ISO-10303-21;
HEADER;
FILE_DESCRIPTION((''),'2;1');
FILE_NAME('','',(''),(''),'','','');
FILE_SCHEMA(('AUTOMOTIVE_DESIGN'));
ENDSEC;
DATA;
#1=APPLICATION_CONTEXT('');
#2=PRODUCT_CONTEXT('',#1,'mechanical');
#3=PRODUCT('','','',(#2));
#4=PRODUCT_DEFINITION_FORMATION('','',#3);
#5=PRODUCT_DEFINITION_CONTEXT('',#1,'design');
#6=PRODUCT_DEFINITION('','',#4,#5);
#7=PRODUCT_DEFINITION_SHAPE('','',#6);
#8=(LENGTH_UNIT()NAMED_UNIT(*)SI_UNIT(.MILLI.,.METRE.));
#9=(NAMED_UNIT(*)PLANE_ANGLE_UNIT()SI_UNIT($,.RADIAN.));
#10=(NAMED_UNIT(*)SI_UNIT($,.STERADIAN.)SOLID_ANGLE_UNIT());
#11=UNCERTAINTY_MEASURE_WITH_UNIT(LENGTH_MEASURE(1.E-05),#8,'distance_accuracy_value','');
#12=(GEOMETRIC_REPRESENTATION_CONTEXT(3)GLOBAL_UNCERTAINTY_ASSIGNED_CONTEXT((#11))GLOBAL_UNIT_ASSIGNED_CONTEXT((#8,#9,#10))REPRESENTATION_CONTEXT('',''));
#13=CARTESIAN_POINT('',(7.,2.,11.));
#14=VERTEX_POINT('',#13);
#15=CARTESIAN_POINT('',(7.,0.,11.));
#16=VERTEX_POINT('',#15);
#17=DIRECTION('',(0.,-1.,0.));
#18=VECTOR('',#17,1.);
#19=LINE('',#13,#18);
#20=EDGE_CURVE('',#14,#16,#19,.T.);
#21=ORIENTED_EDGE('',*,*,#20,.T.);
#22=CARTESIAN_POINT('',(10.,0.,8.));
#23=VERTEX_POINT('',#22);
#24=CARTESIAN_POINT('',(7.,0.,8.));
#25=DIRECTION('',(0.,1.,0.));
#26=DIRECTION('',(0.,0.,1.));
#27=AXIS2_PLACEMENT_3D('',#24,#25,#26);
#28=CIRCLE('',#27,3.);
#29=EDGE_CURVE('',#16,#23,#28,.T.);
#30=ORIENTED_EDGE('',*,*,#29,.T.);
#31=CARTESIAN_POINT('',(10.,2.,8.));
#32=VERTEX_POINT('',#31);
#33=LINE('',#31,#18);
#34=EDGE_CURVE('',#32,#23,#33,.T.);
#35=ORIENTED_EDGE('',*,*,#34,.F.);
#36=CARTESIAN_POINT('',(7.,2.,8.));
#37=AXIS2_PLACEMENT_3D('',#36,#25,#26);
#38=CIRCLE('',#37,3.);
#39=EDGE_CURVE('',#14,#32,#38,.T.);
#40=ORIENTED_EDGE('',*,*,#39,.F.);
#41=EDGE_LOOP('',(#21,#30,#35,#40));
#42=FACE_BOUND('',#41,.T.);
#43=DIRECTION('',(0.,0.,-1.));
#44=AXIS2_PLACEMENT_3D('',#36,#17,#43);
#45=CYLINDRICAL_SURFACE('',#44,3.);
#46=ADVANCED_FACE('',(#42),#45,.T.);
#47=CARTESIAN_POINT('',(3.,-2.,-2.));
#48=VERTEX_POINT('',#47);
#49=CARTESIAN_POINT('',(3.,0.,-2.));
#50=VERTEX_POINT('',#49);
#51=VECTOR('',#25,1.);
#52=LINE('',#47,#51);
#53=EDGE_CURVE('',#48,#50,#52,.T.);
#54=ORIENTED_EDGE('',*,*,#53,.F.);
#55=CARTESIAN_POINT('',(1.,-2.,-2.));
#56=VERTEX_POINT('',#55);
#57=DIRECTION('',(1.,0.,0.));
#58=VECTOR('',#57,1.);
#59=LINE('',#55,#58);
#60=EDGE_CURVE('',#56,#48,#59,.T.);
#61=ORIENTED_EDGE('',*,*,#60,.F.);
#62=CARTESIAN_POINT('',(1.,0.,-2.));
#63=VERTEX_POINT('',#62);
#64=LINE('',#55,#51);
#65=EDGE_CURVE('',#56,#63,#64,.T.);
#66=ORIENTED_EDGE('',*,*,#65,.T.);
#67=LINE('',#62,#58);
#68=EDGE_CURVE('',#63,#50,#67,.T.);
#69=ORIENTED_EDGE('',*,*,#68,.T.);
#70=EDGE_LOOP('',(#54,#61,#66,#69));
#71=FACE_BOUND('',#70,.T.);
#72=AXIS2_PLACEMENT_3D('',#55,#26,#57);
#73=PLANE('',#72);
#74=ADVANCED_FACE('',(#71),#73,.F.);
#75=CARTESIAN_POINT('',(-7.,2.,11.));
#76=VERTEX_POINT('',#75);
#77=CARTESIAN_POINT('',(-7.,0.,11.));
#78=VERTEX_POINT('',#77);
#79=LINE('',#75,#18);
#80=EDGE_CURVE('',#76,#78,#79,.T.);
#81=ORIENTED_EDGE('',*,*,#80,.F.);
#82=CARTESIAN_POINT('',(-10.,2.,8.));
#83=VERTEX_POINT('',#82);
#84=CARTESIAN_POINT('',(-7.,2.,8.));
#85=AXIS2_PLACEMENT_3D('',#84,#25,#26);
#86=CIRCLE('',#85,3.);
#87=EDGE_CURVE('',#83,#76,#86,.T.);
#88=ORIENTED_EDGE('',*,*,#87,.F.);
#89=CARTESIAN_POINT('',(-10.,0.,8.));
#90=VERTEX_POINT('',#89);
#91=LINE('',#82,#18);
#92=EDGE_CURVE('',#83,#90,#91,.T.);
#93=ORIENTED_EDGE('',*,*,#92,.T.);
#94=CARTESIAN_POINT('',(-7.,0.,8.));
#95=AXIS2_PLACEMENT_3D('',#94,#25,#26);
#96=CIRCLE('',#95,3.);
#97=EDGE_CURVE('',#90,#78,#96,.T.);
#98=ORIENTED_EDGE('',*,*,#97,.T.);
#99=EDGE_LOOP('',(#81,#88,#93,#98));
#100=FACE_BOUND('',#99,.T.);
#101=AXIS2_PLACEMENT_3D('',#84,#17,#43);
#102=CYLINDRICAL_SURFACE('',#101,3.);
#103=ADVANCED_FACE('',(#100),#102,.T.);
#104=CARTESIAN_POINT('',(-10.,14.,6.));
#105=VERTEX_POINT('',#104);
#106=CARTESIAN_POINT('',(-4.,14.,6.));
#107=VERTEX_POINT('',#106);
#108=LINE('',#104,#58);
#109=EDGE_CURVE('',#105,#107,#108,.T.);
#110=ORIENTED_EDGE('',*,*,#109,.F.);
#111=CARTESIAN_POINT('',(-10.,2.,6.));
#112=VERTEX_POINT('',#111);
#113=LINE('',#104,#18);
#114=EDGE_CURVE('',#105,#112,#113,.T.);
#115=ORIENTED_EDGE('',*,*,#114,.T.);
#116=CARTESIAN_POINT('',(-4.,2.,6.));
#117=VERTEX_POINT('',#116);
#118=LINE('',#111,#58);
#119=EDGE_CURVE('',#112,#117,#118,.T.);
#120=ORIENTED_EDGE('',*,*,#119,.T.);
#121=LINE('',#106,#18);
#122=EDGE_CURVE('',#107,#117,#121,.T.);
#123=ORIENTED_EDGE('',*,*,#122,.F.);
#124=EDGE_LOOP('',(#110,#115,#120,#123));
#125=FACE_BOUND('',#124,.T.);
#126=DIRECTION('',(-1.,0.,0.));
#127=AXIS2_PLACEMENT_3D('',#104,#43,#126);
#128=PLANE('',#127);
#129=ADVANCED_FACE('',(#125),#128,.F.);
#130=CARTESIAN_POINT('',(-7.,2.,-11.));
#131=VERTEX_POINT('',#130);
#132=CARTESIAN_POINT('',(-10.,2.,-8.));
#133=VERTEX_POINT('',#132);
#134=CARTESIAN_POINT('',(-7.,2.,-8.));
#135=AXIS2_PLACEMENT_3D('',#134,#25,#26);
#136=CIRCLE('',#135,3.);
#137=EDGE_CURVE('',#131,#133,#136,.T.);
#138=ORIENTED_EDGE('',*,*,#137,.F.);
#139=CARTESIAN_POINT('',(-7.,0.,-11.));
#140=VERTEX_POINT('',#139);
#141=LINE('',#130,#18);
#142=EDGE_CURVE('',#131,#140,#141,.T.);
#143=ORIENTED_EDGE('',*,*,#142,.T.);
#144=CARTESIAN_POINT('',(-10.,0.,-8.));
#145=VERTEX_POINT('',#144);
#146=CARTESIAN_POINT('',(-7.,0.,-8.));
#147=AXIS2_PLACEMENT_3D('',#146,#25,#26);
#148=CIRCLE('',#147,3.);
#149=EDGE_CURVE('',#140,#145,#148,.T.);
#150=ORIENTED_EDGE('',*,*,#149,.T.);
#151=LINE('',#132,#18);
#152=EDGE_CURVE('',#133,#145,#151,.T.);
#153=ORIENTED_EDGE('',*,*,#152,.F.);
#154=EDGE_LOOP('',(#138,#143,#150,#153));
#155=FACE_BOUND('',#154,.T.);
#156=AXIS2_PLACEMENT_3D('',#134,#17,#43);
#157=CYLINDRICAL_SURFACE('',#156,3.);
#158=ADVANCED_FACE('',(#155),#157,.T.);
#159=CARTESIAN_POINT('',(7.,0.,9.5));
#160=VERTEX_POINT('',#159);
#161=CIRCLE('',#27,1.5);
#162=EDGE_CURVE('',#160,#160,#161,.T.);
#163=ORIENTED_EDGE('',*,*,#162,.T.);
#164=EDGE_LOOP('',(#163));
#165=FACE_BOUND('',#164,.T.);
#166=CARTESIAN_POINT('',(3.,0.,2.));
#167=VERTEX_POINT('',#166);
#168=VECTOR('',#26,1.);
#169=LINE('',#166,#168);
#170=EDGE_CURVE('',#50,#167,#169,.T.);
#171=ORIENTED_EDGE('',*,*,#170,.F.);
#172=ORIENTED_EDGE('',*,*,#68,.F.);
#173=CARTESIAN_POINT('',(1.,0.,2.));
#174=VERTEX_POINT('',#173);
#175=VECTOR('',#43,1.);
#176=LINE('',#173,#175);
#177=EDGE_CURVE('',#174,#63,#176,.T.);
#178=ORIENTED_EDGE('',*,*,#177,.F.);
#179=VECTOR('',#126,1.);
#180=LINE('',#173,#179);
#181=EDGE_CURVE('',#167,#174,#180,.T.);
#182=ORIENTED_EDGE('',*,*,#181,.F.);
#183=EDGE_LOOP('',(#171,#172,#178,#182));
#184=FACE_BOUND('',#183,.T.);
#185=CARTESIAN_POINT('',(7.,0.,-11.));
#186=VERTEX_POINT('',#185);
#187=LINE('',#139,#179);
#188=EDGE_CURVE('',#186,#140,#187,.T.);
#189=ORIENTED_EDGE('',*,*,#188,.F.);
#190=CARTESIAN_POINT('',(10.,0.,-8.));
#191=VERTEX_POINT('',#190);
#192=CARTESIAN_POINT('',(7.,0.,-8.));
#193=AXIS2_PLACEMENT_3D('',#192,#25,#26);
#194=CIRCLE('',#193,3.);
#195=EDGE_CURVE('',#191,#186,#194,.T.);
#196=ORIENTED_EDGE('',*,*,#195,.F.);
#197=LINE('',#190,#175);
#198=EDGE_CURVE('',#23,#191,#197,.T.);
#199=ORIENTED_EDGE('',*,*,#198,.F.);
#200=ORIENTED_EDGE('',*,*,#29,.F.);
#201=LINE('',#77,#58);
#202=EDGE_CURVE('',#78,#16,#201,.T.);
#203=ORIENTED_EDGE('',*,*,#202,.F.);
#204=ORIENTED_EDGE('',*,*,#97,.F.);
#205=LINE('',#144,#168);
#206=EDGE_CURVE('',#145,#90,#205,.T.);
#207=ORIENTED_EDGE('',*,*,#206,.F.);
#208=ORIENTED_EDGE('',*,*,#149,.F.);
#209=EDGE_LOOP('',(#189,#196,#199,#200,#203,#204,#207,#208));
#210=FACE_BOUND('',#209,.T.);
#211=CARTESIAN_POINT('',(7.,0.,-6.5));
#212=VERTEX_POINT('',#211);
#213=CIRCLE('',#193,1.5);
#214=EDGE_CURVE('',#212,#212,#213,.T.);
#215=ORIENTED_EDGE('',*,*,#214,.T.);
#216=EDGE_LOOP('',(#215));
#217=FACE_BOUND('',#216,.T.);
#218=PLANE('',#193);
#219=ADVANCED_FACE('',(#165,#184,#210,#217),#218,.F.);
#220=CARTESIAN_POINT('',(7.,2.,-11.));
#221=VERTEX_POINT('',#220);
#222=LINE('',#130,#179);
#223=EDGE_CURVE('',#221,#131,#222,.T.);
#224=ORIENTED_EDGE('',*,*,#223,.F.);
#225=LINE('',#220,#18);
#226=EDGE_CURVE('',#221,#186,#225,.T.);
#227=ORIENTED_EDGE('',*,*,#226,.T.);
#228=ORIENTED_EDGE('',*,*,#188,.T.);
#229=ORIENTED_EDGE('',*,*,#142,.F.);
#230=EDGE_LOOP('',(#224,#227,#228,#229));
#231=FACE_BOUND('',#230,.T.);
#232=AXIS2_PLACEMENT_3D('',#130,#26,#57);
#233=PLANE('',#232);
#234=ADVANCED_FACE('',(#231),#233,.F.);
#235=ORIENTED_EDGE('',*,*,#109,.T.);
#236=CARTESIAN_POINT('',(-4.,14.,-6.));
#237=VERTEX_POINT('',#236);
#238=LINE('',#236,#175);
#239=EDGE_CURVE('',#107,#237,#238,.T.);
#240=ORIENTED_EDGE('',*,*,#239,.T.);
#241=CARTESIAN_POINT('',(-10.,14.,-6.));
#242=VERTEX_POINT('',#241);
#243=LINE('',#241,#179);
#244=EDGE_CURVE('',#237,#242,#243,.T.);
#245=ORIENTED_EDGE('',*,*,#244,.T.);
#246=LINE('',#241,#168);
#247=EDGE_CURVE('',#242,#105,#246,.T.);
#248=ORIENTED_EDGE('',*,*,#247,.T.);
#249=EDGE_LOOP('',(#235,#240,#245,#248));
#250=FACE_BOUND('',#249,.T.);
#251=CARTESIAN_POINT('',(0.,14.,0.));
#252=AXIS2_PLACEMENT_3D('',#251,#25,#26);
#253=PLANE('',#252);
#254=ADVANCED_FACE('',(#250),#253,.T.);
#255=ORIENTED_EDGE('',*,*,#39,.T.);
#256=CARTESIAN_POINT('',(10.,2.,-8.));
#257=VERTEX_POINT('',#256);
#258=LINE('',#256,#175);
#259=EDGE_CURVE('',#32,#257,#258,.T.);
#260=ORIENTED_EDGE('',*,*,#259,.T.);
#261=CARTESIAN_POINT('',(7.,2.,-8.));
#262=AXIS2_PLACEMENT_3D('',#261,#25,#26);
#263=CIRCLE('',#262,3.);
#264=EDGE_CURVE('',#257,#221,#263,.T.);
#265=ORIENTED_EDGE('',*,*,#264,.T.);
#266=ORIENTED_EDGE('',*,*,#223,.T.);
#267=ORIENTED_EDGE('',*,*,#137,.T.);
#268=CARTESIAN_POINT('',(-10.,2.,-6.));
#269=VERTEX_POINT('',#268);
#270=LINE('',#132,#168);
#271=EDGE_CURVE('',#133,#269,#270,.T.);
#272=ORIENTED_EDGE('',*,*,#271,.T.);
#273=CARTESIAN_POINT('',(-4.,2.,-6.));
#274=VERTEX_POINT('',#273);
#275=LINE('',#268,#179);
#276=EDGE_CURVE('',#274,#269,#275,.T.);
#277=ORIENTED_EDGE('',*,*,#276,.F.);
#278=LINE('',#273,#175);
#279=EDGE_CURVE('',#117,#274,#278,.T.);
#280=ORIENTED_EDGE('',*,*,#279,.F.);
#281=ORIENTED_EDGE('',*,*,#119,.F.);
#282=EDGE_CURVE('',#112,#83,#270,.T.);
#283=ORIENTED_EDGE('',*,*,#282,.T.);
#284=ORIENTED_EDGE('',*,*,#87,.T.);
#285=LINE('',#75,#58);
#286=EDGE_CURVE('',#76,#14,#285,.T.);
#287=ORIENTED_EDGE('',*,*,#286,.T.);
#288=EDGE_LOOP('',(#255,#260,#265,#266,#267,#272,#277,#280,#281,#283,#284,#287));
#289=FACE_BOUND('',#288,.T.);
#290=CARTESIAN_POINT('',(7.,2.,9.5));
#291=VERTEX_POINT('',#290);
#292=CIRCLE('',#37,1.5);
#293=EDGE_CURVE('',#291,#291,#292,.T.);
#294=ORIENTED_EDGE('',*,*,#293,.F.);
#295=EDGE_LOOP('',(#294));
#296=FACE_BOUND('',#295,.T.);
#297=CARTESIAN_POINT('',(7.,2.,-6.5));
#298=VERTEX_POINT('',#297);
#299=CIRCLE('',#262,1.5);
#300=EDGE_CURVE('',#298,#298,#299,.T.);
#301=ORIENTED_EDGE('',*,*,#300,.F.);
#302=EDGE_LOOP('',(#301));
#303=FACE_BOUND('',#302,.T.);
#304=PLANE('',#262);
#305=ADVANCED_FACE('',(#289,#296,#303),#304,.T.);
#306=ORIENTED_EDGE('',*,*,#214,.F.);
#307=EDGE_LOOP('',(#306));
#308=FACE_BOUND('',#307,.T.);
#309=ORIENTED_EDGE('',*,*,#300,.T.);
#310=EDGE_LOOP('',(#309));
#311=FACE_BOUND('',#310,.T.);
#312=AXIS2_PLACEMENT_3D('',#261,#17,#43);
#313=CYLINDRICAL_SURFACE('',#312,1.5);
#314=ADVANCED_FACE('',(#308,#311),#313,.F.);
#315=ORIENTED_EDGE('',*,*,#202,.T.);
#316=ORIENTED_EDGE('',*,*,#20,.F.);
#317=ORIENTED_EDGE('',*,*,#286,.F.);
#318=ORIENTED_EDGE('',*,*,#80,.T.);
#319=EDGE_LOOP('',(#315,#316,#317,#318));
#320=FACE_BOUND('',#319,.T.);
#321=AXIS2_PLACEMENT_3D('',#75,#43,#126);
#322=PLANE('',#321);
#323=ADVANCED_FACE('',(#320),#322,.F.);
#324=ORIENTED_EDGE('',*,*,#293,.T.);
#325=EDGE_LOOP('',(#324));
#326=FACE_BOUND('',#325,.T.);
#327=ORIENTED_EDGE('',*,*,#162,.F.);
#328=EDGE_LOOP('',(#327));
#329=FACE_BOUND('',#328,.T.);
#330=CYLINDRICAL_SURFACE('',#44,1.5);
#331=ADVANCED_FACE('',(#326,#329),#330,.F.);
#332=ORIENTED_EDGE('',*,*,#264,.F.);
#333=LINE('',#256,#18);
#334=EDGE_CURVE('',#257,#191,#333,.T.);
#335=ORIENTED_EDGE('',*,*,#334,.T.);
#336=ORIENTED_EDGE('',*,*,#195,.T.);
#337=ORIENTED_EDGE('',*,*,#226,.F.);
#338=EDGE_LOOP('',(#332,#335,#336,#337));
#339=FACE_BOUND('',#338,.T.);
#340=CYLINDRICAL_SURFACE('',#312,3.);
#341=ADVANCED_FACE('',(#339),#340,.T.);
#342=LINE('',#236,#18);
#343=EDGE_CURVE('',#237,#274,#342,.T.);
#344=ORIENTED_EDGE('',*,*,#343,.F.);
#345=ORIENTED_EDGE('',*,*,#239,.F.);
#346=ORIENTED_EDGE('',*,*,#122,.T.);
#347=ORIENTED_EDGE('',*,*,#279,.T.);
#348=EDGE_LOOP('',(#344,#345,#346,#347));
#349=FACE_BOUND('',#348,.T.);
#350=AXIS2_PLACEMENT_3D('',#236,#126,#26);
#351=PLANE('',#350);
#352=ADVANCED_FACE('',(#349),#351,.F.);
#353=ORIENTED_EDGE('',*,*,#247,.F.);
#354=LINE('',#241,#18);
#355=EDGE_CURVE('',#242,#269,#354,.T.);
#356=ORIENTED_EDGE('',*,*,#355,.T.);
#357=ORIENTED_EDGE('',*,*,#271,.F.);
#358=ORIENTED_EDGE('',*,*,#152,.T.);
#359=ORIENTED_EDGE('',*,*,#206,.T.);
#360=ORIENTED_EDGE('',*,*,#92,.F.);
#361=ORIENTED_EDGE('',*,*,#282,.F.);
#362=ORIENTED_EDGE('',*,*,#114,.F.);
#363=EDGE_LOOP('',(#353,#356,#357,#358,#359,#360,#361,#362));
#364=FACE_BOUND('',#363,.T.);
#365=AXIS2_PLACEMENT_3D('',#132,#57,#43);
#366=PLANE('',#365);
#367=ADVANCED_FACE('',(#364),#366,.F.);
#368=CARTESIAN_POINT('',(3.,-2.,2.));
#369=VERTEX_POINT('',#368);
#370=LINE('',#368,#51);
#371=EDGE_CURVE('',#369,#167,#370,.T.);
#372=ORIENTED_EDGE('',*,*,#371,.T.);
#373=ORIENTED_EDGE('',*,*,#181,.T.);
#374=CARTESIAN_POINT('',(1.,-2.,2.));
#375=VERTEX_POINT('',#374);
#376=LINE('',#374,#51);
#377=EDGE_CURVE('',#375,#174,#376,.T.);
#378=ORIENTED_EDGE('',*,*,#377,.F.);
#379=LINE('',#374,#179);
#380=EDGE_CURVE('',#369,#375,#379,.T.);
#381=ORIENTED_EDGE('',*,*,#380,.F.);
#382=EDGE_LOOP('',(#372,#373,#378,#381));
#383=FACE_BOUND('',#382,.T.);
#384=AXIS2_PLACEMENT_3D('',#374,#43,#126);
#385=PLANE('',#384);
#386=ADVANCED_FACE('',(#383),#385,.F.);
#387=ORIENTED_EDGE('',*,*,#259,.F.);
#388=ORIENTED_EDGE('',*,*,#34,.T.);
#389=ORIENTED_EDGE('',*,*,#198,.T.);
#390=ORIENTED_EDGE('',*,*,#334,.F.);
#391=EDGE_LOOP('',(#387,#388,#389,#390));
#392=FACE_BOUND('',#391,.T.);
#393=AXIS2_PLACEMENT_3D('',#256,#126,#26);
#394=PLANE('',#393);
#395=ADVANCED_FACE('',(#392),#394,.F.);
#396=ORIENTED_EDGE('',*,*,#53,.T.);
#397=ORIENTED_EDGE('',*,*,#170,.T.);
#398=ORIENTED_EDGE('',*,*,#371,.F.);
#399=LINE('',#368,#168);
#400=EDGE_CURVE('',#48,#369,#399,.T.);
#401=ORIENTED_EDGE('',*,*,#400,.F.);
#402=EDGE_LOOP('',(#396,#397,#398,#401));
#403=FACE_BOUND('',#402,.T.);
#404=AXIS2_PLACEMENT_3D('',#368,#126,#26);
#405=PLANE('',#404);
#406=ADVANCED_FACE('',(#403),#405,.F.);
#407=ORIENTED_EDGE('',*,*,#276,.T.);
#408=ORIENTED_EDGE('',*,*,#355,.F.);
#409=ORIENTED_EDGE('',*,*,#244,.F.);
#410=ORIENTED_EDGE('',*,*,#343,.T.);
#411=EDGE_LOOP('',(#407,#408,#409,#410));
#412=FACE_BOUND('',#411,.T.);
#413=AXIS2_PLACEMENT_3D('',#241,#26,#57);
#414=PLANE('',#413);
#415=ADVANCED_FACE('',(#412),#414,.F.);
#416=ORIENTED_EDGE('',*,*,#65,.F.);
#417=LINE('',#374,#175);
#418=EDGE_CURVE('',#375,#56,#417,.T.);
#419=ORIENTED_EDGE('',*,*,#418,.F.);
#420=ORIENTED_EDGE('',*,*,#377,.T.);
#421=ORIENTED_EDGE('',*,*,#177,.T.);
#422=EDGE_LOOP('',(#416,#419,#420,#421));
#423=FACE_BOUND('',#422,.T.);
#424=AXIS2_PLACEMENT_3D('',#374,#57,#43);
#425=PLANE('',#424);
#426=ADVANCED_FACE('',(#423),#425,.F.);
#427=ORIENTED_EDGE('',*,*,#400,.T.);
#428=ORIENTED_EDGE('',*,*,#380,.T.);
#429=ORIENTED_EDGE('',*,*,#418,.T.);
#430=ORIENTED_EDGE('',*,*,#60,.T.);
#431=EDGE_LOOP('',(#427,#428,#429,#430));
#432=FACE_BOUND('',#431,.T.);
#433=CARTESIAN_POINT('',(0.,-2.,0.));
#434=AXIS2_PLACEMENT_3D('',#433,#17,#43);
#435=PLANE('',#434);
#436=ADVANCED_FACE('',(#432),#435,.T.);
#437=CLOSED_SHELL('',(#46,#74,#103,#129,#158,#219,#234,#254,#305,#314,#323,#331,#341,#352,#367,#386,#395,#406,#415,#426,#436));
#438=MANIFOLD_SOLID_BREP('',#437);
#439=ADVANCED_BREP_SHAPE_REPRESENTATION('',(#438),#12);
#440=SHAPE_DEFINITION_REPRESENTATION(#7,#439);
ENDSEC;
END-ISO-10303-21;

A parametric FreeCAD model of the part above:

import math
import FreeCAD as App
import Part
import Sketcher


def add_polygon(sketch, points):
    """Adds a closed chain of lines whose ends are joined by coincident constraints."""
    first, n = sketch.GeometryCount, len(points)
    for a, b in zip(points, points[1:] + points[:1]):
        sketch.addGeometry(Part.LineSegment(App.Vector(*a, 0), App.Vector(*b, 0)), False)
    for i in range(n):
        sketch.addConstraint(Sketcher.Constraint("Coincident", first + i, 2, first + (i + 1) % n, 1))

doc = App.newDocument("Part")
body = doc.addObject("PartDesign::Body", "Body")

# Sketch on XZ plane
sketch1 = body.newObject("Sketcher::SketchObject", "Sketch")
sketch1.AttachmentSupport = (doc.getObject("XZ_Plane"), [""])
sketch1.MapMode = "FlatFace"
sketch1.addGeometry([
    Part.LineSegment(App.Vector(7, -11, 0), App.Vector(-7, -11, 0)),  # 0
    Part.ArcOfCircle(Part.Circle(App.Vector(-7, -8, 0), App.Vector(0, 0, 1), 3), math.radians(180), math.radians(270)),  # 1
    Part.LineSegment(App.Vector(-10, -8, 0), App.Vector(-10, 8, 0)),  # 2
    Part.ArcOfCircle(Part.Circle(App.Vector(-7, 8, 0), App.Vector(0, 0, 1), 3), math.radians(90), math.radians(180)),  # 3
    Part.LineSegment(App.Vector(-7, 11, 0), App.Vector(7, 11, 0)),  # 4
    Part.ArcOfCircle(Part.Circle(App.Vector(7, 8, 0), App.Vector(0, 0, 1), 3), math.radians(0), math.radians(90)),  # 5
    Part.LineSegment(App.Vector(10, 8, 0), App.Vector(10, -8, 0)),  # 6
    Part.ArcOfCircle(Part.Circle(App.Vector(7, -8, 0), App.Vector(0, 0, 1), 3), math.radians(-90), math.radians(0)),  # 7
    Part.Circle(App.Vector(7, 8, 0), App.Vector(0, 0, 1), 1.5),  # 8
    Part.Circle(App.Vector(7, -8, 0), App.Vector(0, 0, 1), 1.5),  # 9
], False)
sketch1.addConstraint([
    Sketcher.Constraint("Tangent", 0, 2, 1, 2),
    Sketcher.Constraint("Tangent", 1, 1, 2, 1),
    Sketcher.Constraint("Tangent", 2, 2, 3, 2),
    Sketcher.Constraint("Tangent", 3, 1, 4, 1),
    Sketcher.Constraint("Tangent", 4, 2, 5, 2),
    Sketcher.Constraint("Tangent", 5, 1, 6, 1),
    Sketcher.Constraint("Tangent", 6, 2, 7, 2),
    Sketcher.Constraint("Tangent", 7, 1, 0, 1),
    Sketcher.Constraint("Horizontal", 0),
    Sketcher.Constraint("Vertical", 2),
    Sketcher.Constraint("Horizontal", 4),
    Sketcher.Constraint("Vertical", 6),
    Sketcher.Constraint("Coincident", 8, 3, 5, 3),
    Sketcher.Constraint("Coincident", 9, 3, 7, 3),
    Sketcher.Constraint("Equal", 1, 3),
    Sketcher.Constraint("Equal", 3, 5),
    Sketcher.Constraint("Equal", 5, 7),
    Sketcher.Constraint("Equal", 8, 9),
    Sketcher.Constraint("Symmetric", 1, 3, 5, 3, -1, 1),
    Sketcher.Constraint("Diameter", 8, 3.0),
    Sketcher.Constraint("Radius", 1, 3.0),
    Sketcher.Constraint("DistanceX", 0, 2, 0, 1, 14.0),
    Sketcher.Constraint("DistanceY", 2, 1, 2, 2, 16.0),
])
pad1 = body.newObject("PartDesign::Pad", "Pad")
pad1.Profile = sketch1
pad1.Length = 2
pad1.Reversed = True

# Sketch on XZ plane
sketch2 = body.newObject("Sketcher::SketchObject", "Sketch001")
sketch2.AttachmentSupport = (doc.getObject("XZ_Plane"), [""])
sketch2.MapMode = "FlatFace"
sketch2.AttachmentOffset = App.Placement(App.Vector(0, 0, -2), App.Rotation())
add_polygon(sketch2, [(-10, -6), (-10, 6), (-4, 6), (-4, -6)])  # lines 0-3
sketch2.addConstraint([
    Sketcher.Constraint("Vertical", 0),
    Sketcher.Constraint("Horizontal", 1),
    Sketcher.Constraint("Vertical", 2),
    Sketcher.Constraint("Horizontal", 3),
    Sketcher.Constraint("DistanceX", 1, 1, 1, 2, 6.0),
    Sketcher.Constraint("DistanceY", 0, 1, 0, 2, 12.0),
    Sketcher.Constraint("DistanceX", 0, 2, -1, 1, 10.0),
    Sketcher.Constraint("DistanceY", -1, 1, 0, 2, 6.0),
])
pad2 = body.newObject("PartDesign::Pad", "Pad001")
pad2.Profile = sketch2
pad2.Length = 12
pad2.Reversed = True

# Sketch on XZ plane
sketch3 = body.newObject("Sketcher::SketchObject", "Sketch002")
sketch3.AttachmentSupport = (doc.getObject("XZ_Plane"), [""])
sketch3.MapMode = "FlatFace"
add_polygon(sketch3, [(1, 2), (1, -2), (3, -2), (3, 2)])  # lines 0-3
sketch3.addConstraint([
    Sketcher.Constraint("Vertical", 0),
    Sketcher.Constraint("Horizontal", 1),
    Sketcher.Constraint("Vertical", 2),
    Sketcher.Constraint("Horizontal", 3),
    Sketcher.Constraint("DistanceX", 1, 1, 1, 2, 2.0),
    Sketcher.Constraint("DistanceY", 0, 2, 0, 1, 4.0),
    Sketcher.Constraint("DistanceX", -1, 1, 0, 2, 1.0),
    Sketcher.Constraint("DistanceY", 0, 2, -1, 1, 2.0),
])
pad3 = body.newObject("PartDesign::Pad", "Pad002")
pad3.Profile = sketch3
pad3.Length = 2

doc.recompute()
